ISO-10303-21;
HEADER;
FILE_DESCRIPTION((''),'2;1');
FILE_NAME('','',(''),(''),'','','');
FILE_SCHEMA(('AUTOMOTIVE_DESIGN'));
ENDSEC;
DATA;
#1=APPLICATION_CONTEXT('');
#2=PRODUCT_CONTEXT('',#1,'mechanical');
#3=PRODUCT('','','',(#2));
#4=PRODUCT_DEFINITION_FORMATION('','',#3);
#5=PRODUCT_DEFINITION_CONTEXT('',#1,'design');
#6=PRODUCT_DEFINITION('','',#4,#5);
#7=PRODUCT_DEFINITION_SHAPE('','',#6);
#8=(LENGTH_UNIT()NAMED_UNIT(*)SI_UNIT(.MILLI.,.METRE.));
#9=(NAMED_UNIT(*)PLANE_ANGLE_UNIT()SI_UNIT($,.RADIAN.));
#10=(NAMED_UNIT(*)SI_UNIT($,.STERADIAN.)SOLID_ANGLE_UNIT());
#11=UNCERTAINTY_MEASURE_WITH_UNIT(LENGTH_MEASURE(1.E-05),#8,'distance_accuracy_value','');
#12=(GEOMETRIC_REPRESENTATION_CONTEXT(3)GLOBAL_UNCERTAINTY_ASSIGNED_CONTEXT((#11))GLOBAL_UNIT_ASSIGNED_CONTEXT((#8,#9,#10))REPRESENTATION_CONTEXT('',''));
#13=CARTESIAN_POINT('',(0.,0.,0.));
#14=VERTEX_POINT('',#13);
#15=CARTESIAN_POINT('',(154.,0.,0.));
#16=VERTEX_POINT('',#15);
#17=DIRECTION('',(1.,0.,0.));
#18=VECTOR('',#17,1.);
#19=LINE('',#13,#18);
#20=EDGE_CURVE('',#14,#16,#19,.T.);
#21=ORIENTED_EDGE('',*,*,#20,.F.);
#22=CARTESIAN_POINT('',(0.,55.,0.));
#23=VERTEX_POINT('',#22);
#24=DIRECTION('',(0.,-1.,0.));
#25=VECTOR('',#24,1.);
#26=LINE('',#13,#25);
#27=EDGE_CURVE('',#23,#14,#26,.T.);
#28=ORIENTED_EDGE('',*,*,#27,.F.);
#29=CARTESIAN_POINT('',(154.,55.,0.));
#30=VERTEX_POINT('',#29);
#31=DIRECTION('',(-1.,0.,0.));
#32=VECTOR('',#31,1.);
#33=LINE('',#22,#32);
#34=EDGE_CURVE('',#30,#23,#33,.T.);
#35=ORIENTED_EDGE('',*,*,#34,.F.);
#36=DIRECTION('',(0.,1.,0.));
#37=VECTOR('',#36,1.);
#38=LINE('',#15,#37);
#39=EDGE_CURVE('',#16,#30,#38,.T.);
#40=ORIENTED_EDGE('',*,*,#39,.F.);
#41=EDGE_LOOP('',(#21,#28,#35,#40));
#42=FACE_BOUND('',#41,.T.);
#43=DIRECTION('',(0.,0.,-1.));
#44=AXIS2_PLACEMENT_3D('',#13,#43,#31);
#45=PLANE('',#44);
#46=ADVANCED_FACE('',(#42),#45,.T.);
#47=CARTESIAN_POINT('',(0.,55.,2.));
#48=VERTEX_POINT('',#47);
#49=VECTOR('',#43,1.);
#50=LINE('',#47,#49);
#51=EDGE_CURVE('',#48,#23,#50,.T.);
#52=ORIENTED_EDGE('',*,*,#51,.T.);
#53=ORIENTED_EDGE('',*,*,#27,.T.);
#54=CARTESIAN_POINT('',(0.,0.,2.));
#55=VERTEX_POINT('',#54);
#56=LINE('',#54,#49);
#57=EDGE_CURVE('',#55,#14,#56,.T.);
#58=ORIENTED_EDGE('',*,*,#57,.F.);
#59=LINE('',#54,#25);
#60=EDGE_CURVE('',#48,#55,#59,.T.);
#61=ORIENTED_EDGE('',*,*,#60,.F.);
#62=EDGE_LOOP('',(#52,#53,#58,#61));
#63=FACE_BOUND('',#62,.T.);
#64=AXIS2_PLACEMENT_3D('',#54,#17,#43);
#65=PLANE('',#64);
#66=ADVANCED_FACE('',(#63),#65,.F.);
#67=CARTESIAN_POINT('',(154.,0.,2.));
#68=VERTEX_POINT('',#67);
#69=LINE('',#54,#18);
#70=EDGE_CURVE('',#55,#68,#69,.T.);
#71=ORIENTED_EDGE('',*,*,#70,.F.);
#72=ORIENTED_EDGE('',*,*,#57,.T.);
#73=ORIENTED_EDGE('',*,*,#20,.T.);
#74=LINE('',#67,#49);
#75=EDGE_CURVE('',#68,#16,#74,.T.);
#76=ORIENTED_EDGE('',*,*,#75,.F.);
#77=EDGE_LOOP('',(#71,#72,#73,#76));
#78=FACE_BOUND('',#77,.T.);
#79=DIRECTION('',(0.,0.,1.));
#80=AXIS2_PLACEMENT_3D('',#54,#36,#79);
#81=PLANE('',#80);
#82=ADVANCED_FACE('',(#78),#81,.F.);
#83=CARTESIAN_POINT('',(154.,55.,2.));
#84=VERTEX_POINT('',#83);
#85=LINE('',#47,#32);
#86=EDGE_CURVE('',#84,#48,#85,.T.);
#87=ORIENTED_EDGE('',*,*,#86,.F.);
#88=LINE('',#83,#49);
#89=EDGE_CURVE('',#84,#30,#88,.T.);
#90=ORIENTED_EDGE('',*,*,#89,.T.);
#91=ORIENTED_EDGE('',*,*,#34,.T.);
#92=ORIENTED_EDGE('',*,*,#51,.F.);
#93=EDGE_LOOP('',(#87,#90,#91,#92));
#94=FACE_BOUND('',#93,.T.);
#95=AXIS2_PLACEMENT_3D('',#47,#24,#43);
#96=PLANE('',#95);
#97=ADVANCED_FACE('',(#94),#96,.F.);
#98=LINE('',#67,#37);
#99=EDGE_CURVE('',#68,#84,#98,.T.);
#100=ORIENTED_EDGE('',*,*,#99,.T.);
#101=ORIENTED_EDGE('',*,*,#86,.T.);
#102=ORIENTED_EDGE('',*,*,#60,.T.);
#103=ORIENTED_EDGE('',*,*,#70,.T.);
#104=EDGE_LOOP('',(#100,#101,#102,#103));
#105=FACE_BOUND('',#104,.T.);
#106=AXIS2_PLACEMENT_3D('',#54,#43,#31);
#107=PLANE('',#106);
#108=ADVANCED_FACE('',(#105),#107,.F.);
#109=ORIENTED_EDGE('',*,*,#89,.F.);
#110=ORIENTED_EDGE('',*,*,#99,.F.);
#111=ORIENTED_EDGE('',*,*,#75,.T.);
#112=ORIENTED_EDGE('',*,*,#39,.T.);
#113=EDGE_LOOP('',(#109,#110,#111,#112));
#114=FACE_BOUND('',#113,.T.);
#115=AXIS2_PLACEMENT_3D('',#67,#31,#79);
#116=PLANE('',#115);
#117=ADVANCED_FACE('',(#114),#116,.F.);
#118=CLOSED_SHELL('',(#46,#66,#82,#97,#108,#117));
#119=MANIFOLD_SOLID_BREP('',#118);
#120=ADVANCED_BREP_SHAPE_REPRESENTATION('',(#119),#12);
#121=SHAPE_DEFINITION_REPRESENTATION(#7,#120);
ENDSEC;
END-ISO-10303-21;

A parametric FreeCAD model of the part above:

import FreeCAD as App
import Part
import Sketcher
from FreeCAD import Vector


def add_polygon(sketch, points):
    """Adds a closed chain of lines whose ends are joined by coincident constraints."""
    first, n = sketch.GeometryCount, len(points)
    for a, b in zip(points, points[1:] + points[:1]):
        sketch.addGeometry(Part.LineSegment(App.Vector(*a, 0), App.Vector(*b, 0)), False)
    for i in range(n):
        sketch.addConstraint(Sketcher.Constraint("Coincident", first + i, 2, first + (i + 1) % n, 1))

doc = App.newDocument("Part")
body = doc.addObject("PartDesign::Body", "Body")

# Sketch on XY plane
sketch1 = body.newObject("Sketcher::SketchObject", "Sketch")
sketch1.AttachmentSupport = (doc.getObject("XY_Plane"), [""])
sketch1.MapMode = "FlatFace"
add_polygon(sketch1, [(0, 55), (0, 0), (154, 0), (154, 55)])  # lines 0-3
sketch1.addConstraint([
    Sketcher.Constraint("Vertical", 0),
    Sketcher.Constraint("Horizontal", 1),
    Sketcher.Constraint("Vertical", 2),
    Sketcher.Constraint("Horizontal", 3),
    Sketcher.Constraint("Coincident", 0, 2, -1, 1),
    Sketcher.Constraint("DistanceX", 1, 1, 1, 2, 154.0),
    Sketcher.Constraint("DistanceY", 0, 2, 0, 1, 55.0),
])
pad1 = body.newObject("PartDesign::Pad", "Pad")
pad1.Profile = sketch1
pad1.Length = 2

doc.recompute()
